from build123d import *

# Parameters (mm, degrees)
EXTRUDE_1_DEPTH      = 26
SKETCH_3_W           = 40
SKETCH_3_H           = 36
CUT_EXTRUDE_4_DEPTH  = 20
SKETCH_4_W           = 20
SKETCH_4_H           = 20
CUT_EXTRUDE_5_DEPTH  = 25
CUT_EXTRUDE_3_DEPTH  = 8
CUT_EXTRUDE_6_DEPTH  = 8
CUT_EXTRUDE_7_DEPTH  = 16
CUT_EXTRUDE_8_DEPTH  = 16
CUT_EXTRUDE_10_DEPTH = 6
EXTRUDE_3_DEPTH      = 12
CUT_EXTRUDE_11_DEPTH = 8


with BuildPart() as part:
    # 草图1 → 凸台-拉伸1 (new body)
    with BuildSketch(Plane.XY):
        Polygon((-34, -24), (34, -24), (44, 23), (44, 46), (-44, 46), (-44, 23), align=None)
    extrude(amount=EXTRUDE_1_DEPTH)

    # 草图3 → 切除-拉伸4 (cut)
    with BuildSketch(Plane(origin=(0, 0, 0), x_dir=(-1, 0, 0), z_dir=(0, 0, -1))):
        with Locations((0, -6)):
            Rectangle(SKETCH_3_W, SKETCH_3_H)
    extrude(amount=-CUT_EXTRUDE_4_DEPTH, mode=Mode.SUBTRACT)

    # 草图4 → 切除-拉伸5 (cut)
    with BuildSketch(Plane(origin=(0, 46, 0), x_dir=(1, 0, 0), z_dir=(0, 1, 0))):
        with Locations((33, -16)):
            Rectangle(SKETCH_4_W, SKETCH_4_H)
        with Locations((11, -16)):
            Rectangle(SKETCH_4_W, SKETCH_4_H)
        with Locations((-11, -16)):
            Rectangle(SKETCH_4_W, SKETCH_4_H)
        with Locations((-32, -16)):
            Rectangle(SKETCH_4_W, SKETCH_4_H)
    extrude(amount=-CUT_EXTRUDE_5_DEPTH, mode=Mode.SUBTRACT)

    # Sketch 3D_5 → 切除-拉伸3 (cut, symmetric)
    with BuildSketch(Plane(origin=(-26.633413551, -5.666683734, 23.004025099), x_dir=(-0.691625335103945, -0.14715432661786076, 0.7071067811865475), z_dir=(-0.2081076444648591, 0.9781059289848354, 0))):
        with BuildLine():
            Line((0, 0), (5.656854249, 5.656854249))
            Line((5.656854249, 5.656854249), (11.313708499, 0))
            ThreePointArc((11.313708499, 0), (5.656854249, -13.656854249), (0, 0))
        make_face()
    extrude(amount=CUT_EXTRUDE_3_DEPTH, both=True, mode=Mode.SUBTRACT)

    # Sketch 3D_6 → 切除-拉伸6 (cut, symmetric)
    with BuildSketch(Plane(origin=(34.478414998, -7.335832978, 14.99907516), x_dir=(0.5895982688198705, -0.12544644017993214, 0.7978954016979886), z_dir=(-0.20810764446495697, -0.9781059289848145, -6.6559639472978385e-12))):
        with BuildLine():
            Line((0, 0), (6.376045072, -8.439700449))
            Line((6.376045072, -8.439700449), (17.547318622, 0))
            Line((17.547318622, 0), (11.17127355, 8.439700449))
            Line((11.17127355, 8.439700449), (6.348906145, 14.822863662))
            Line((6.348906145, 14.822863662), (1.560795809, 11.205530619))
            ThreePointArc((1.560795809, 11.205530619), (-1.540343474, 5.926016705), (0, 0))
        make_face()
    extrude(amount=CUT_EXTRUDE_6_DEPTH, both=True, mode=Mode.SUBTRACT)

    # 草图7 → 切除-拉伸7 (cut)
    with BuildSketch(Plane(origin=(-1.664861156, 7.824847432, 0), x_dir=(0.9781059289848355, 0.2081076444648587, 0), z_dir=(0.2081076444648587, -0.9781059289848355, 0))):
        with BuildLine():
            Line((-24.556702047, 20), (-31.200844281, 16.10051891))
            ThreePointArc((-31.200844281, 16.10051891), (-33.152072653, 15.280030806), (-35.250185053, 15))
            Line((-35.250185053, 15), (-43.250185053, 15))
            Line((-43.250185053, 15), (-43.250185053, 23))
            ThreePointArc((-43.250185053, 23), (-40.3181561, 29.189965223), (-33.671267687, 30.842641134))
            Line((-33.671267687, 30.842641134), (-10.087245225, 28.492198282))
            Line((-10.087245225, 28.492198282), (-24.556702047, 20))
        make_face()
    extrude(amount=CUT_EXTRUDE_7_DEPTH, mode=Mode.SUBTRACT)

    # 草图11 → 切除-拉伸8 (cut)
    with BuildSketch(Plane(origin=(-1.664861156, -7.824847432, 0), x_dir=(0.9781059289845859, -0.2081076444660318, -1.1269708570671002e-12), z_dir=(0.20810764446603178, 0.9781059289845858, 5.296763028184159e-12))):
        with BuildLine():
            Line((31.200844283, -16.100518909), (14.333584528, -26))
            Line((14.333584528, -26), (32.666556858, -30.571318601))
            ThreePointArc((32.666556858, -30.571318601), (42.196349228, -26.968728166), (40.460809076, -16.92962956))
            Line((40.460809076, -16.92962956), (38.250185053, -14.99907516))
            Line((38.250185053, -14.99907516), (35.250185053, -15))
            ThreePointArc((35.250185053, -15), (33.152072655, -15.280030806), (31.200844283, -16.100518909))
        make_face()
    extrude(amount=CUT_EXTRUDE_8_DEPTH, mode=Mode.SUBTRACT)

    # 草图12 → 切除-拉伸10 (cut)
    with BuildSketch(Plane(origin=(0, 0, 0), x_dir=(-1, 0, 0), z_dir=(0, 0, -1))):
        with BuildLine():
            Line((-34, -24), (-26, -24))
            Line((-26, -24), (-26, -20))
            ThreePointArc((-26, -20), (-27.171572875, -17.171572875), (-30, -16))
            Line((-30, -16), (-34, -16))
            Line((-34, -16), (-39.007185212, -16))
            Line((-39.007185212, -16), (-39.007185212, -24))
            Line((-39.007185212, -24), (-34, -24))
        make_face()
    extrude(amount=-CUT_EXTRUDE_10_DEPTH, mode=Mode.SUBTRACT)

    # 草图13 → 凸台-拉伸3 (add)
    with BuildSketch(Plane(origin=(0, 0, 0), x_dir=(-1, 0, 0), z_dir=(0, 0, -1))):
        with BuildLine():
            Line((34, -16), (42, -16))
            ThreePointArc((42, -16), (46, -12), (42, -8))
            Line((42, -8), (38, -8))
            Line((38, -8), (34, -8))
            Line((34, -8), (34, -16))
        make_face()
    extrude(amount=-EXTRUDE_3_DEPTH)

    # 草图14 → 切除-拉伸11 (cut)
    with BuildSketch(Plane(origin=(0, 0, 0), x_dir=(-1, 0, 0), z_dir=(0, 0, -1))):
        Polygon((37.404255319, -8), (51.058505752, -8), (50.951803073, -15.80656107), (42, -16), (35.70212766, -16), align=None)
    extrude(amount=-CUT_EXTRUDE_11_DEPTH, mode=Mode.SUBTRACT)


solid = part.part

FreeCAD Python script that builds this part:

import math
import FreeCAD as App
import Part
import Sketcher
Q = App.Units.Quantity


def add_polygon(sketch, points):
    """Adds a closed chain of lines whose ends are joined by coincident constraints."""
    first, n = sketch.GeometryCount, len(points)
    for a, b in zip(points, points[1:] + points[:1]):
        sketch.addGeometry(Part.LineSegment(App.Vector(*a, 0), App.Vector(*b, 0)), False)
    for i in range(n):
        sketch.addConstraint(Sketcher.Constraint("Coincident", first + i, 2, first + (i + 1) % n, 1))

doc = App.newDocument("Part")
params = doc.addObject("Spreadsheet::Sheet", "Params")
for row, (alias, value) in enumerate([
    ("sketch1_width", "68 mm"),
    ("sketch1_width2", "88 mm"),
    ("sketch1_height", "23 mm"),
    ("pad1_length", "26 mm"),
    ("sketch2_width", "40 mm"),
    ("sketch2_height", "36 mm"),
    ("pocket1_length", "20 mm"),
    ("sketch3_width", "20 mm"),
    ("pocket2_length", "25 mm"),
    ("sketch4_radius", "8 mm"),
    ("pocket3_length", "16 mm"),
    ("sketch5_radius", "8 mm"),
    ("pocket4_length", "16 mm"),
    ("sketch6_radius", "8 mm"),
    ("pocket5_length", "16 mm"),
    ("sketch7_radius", "8 mm"),
    ("sketch7_length", "3 mm"),
    ("pocket6_length", "16 mm"),
    ("sketch8_radius", "4 mm"),
    ("sketch8_height", "4 mm"),
    ("pocket7_length", "6 mm"),
    ("sketch9_radius", "4 mm"),
    ("pad2_length", "12 mm"),
    ("pocket8_length", "8 mm"),
], start=1):
    params.set(f"A{row}", alias)
    params.set(f"B{row}", "=" + value)
    params.setAlias(f"B{row}", alias)

body = doc.addObject("PartDesign::Body", "Body")

sketch1 = body.newObject("Sketcher::SketchObject", "Sketch")
sketch1.AttachmentSupport = (doc.getObject("XY_Plane"), [""])
sketch1.MapMode = "FlatFace"
add_polygon(sketch1, [(-34, -24), (34, -24), (44, 23), (44, 46), (-44, 46), (-44, 23)])
sketch1.addConstraint([
    Sketcher.Constraint("Horizontal", 0),
    Sketcher.Constraint("Vertical", 2),
    Sketcher.Constraint("Horizontal", 3),
    Sketcher.Constraint("Vertical", 4),
    Sketcher.Constraint("Symmetric", 1, 2, 4, 2, -2),
    Sketcher.Constraint("Equal", 1, 5),
    Sketcher.Constraint("DistanceX", 0, 1, 0, 2, Q("68 mm")),
    Sketcher.Constraint("DistanceX", 3, 2, 3, 1, Q("88 mm")),
    Sketcher.Constraint("DistanceY", 2, 1, 2, 2, Q("23 mm")),
    Sketcher.Constraint("DistanceY", 0, 2, -1, 1, Q("24 mm")),
    Sketcher.Constraint("DistanceY", -1, 1, 1, 2, Q("23 mm")),
])
sketch1.setExpression("Constraints[12]", "Params.sketch1_width")
sketch1.setExpression("Constraints[13]", "Params.sketch1_width2")
sketch1.setExpression("Constraints[14]", "Params.sketch1_height")
pad1 = body.newObject("PartDesign::Pad", "Pad")
pad1.Profile = sketch1
pad1.setExpression("Length", "Params.pad1_length")

sketch2 = body.newObject("Sketcher::SketchObject", "Sketch001")
sketch2.AttachmentSupport = (doc.getObject("XY_Plane"), [""])
sketch2.MapMode = "FlatFace"
add_polygon(sketch2, [(20, 12), (20, -24), (-20, -24), (-20, 12)])
sketch2.addConstraint([
    Sketcher.Constraint("Vertical", 0),
    Sketcher.Constraint("Horizontal", 1),
    Sketcher.Constraint("Vertical", 2),
    Sketcher.Constraint("Horizontal", 3),
    Sketcher.Constraint("DistanceX", 1, 2, 1, 1, Q("40 mm")),
    Sketcher.Constraint("DistanceY", 0, 2, 0, 1, Q("36 mm")),
    Sketcher.Constraint("DistanceX", -1, 1, 0, 2, Q("20 mm")),
    Sketcher.Constraint("DistanceY", 0, 2, -1, 1, Q("24 mm")),
])
sketch2.setExpression("Constraints[8]", "Params.sketch2_width")
sketch2.setExpression("Constraints[9]", "Params.sketch2_height")
pocket1 = body.newObject("PartDesign::Pocket", "Pocket")
pocket1.Profile = sketch2
pocket1.setExpression("Length", "Params.pocket1_length")
pocket1.Reversed = True

sketch3 = body.newObject("Sketcher::SketchObject", "Sketch002")
sketch3.AttachmentSupport = (doc.getObject("XZ_Plane"), [""])
sketch3.MapMode = "FlatFace"
sketch3.AttachmentOffset = App.Placement(App.Vector(0, 0, -46), App.Rotation())
add_polygon(sketch3, [(23, 6), (23, 26), (43, 26), (43, 6)])
add_polygon(sketch3, [(1, 6), (1, 26), (21, 26), (21, 6)])
add_polygon(sketch3, [(-21, 6), (-21, 26), (-1, 26), (-1, 6)])
add_polygon(sketch3, [(-42, 6), (-42, 26), (-22, 26), (-22, 6)])
sketch3.addConstraint([
    Sketcher.Constraint("Vertical", 0),
    Sketcher.Constraint("Horizontal", 1),
    Sketcher.Constraint("Vertical", 2),
    Sketcher.Constraint("Horizontal", 3),
    Sketcher.Constraint("Vertical", 4),
    Sketcher.Constraint("Horizontal", 5),
    Sketcher.Constraint("Vertical", 6),
    Sketcher.Constraint("Horizontal", 7),
    Sketcher.Constraint("Vertical", 8),
    Sketcher.Constraint("Horizontal", 9),
    Sketcher.Constraint("Vertical", 10),
    Sketcher.Constraint("Horizontal", 11),
    Sketcher.Constraint("Vertical", 12),
    Sketcher.Constraint("Horizontal", 13),
    Sketcher.Constraint("Vertical", 14),
    Sketcher.Constraint("Horizontal", 15),
    Sketcher.Constraint("Symmetric", 5, 2, 8, 2, -2),
    Sketcher.Constraint("Symmetric", 7, 2, 10, 2, -2),
    Sketcher.Constraint("Horizontal", 1, 2, 4, 2),
    Sketcher.Constraint("Horizontal", 3, 2, 6, 2),
    Sketcher.Constraint("Horizontal", 9, 2, 12, 2),
    Sketcher.Constraint("Horizontal", 11, 2, 14, 2),
    Sketcher.Constraint("Equal", 3, 5),
    Sketcher.Constraint("Equal", 11, 13),
    Sketcher.Constraint("Equal", 15, 0),
    Sketcher.Constraint("DistanceX", 1, 1, 1, 2, Q("20 mm")),
    Sketcher.Constraint("DistanceX", -1, 1, 0, 2, Q("23 mm")),
    Sketcher.Constraint("DistanceY", -1, 1, 0, 2, Q("26 mm")),
    Sketcher.Constraint("DistanceX", -1, 1, 4, 2, Q("1 mm")),
    Sketcher.Constraint("DistanceX", 12, 2, -1, 1, Q("42 mm")),
])
sketch3.setExpression("Constraints[41]", "Params.sketch3_width")
pocket2 = body.newObject("PartDesign::Pocket", "Pocket001")
pocket2.Profile = sketch3
pocket2.setExpression("Length", "Params.pocket2_length")
pocket2.Reversed = True

sketch4 = body.newObject("Sketcher::SketchObject", "Sketch003")
sketch4.Placement = App.Placement(App.Vector(-26.633414, -5.666684, 23.004025), App.Rotation(App.Vector(-0.691625335, -0.147154327, 0.707106781), App.Vector(0.691625335, 0.147154326, 0.707106781), App.Vector(-0.208107644, 0.978105929, 0), "ZXY"))
sketch4.addGeometry([
    Part.LineSegment(App.Vector(5.656854, 5.656854, 0), App.Vector(0, 0, 0)),
    Part.ArcOfCircle(Part.Circle(App.Vector(5.656854, -5.656854, 0), App.Vector(0, 0, 1), 8), math.radians(135), math.radians(405)),
    Part.LineSegment(App.Vector(11.313708, 0, 0), App.Vector(5.656854, 5.656854, 0)),
], False)
sketch4.addConstraint([
    Sketcher.Constraint("Tangent", 0, 2, 1, 1),
    Sketcher.Constraint("Tangent", 1, 2, 2, 1),
    Sketcher.Constraint("Coincident", 2, 2, 0, 1),
    Sketcher.Constraint("Coincident", 0, 2, -1, 1),
    Sketcher.Constraint("PointOnObject", 1, 2, -1),
    Sketcher.Constraint("Perpendicular", 0, 2),
    Sketcher.Constraint("Radius", 1, Q("8 mm")),
])
sketch4.setExpression("Constraints[6]", "Params.sketch4_radius")
pocket3 = body.newObject("PartDesign::Pocket", "Pocket002")
pocket3.Profile = sketch4
pocket3.setExpression("Length", "Params.pocket3_length")
pocket3.Midplane = True

sketch5 = body.newObject("Sketcher::SketchObject", "Sketch004")
sketch5.Placement = App.Placement(App.Vector(34.478415, -7.335833, 14.999075), App.Rotation(App.Vector(0.589598269, -0.12544644, 0.797895402), App.Vector(-0.780426223, 0.166048132, 0.602795926), App.Vector(-0.208107644, -0.978105929, 0), "ZXY"))
sketch5.addGeometry([
    Part.LineSegment(App.Vector(0, 0, 0), App.Vector(6.376045, -8.4397, 0)),
    Part.LineSegment(App.Vector(6.376045, -8.4397, 0), App.Vector(17.547319, 0, 0)),
    Part.LineSegment(App.Vector(17.547319, 0, 0), App.Vector(11.171274, 8.4397, 0)),
    Part.LineSegment(App.Vector(11.171274, 8.4397, 0), App.Vector(6.348906, 14.822864, 0)),
    Part.LineSegment(App.Vector(6.348906, 14.822864, 0), App.Vector(1.560796, 11.205531, 0)),
    Part.ArcOfCircle(Part.Circle(App.Vector(6.383163, 4.822367, 0), App.Vector(0, 0, 1), 8), math.radians(127.070405), math.radians(217.070405)),
], False)
sketch5.addConstraint([
    Sketcher.Constraint("Coincident", 0, 2, 1, 1),
    Sketcher.Constraint("Coincident", 1, 2, 2, 1),
    Sketcher.Constraint("Coincident", 2, 2, 3, 1),
    Sketcher.Constraint("Coincident", 3, 2, 4, 1),
    Sketcher.Constraint("Tangent", 4, 2, 5, 1),
    Sketcher.Constraint("Tangent", 5, 2, 0, 1),
    Sketcher.Constraint("Coincident", 5, 2, -1, 1),
    Sketcher.Constraint("PointOnObject", 1, 2, -1),
    Sketcher.Constraint("Perpendicular", 0, 1),
    Sketcher.Constraint("Perpendicular", 1, 2),
    Sketcher.Constraint("Parallel", 2, 3),
    Sketcher.Constraint("Perpendicular", 3, 4),
    Sketcher.Constraint("Equal", 0, 2),
    Sketcher.Constraint("Radius", 5, Q("8 mm")),
    Sketcher.Constraint("DistanceY", 0, 2, -1, 1, Q("8.4397 mm")),
    Sketcher.Constraint("DistanceX", -1, 1, 1, 2, Q("17.547319 mm")),
])
sketch5.setExpression("Constraints[13]", "Params.sketch5_radius")
pocket4 = body.newObject("PartDesign::Pocket", "Pocket003")
pocket4.Profile = sketch5
pocket4.setExpression("Length", "Params.pocket4_length")
pocket4.Midplane = True

sketch6 = body.newObject("Sketcher::SketchObject", "Sketch005")
sketch6.Placement = App.Placement(App.Vector(-1.664861, 7.824847, 0), App.Rotation(App.Vector(0.978105929, 0.208107644, 0), App.Vector(0, 0, 1), App.Vector(0.208107644, -0.978105929, 0), "ZXY"))
sketch6.addGeometry([
    Part.LineSegment(App.Vector(-31.200844, 16.100519, 0), App.Vector(-24.556702, 20, 0)),
    Part.LineSegment(App.Vector(-24.556702, 20, 0), App.Vector(-10.087245, 28.492198, 0)),
    Part.LineSegment(App.Vector(-10.087245, 28.492198, 0), App.Vector(-33.671268, 30.842641, 0)),
    Part.ArcOfCircle(Part.Circle(App.Vector(-35.250185, 23, 0), App.Vector(0, 0, 1), 8), math.radians(78.617106), math.radians(180)),
    Part.LineSegment(App.Vector(-43.250185, 23, 0), App.Vector(-43.250185, 15, 0)),
    Part.LineSegment(App.Vector(-43.250185, 15, 0), App.Vector(-35.250185, 15, 0)),
    Part.ArcOfCircle(Part.Circle(App.Vector(-35.250185, 23, 0), App.Vector(0, 0, 1), 8), math.radians(-90), math.radians(-59.591109)),
], False)
sketch6.addConstraint([
    Sketcher.Constraint("Coincident", 0, 2, 1, 1),
    Sketcher.Constraint("Coincident", 1, 2, 2, 1),
    Sketcher.Constraint("Coincident", 2, 2, 3, 1),
    Sketcher.Constraint("Tangent", 3, 2, 4, 1),
    Sketcher.Constraint("Coincident", 4, 2, 5, 1),
    Sketcher.Constraint("Tangent", 5, 2, 6, 1),
    Sketcher.Constraint("Tangent", 6, 2, 0, 1),
    Sketcher.Constraint("Vertical", 4),
    Sketcher.Constraint("Horizontal", 5),
    Sketcher.Constraint("Coincident", 6, 3, 3, 3),
    Sketcher.Constraint("Equal", 3, 6),
    Sketcher.Constraint("Parallel", 0, 1),
    Sketcher.Constraint("Radius", 3, Q("8 mm")),
    Sketcher.Constraint("DistanceY", -1, 1, 3, 3, Q("23 mm")),
    Sketcher.Constraint("DistanceY", -1, 1, 0, 2, Q("20 mm")),
    Sketcher.Constraint("DistanceY", -1, 1, 1, 2, Q("28.492198 mm")),
    Sketcher.Constraint("Distance", 2, Q("23.700859 mm")),
    Sketcher.Constraint("DistanceY", -1, 1, 2, 2, Q("30.842641 mm")),
    Sketcher.Constraint("DistanceX", 3, 3, -1, 1, Q("35.250185 mm")),
])
sketch6.setExpression("Constraints[12]", "Params.sketch6_radius")
pocket5 = body.newObject("PartDesign::Pocket", "Pocket004")
pocket5.Profile = sketch6
pocket5.setExpression("Length", "Params.pocket5_length")
pocket5.Reversed = True

sketch7 = body.newObject("Sketcher::SketchObject", "Sketch006")
sketch7.Placement = App.Placement(App.Vector(-1.664861, -7.824847, 0), App.Rotation(App.Vector(0.978105929, -0.208107644, 0), App.Vector(0, 0, -1), App.Vector(0.208107644, 0.978105929, 0), "ZXY"))
sketch7.addGeometry([
    Part.LineSegment(App.Vector(31.200844, -16.100519, 0), App.Vector(14.333585, -26, 0)),
    Part.LineSegment(App.Vector(14.333585, -26, 0), App.Vector(32.666557, -30.571319, 0)),
    Part.ArcOfCircle(Part.Circle(App.Vector(35.250185, -23, 0), App.Vector(0, 0, 1), 8), math.radians(-108.841636), math.radians(49.358197)),
    Part.LineSegment(App.Vector(40.460809, -16.92963, 0), App.Vector(38.250185, -14.999075, 0)),
    Part.LineSegment(App.Vector(38.250185, -14.999075, 0), App.Vector(35.250185, -15, 0)),
    Part.ArcOfCircle(Part.Circle(App.Vector(35.250185, -23, 0), App.Vector(0, 0, 1), 8), math.radians(90), math.radians(120.408891)),
], False)
sketch7.addConstraint([
    Sketcher.Constraint("Coincident", 0, 2, 1, 1),
    Sketcher.Constraint("Coincident", 1, 2, 2, 1),
    Sketcher.Constraint("Coincident", 2, 2, 3, 1),
    Sketcher.Constraint("Coincident", 3, 2, 4, 1),
    Sketcher.Constraint("Coincident", 4, 2, 5, 1),
    Sketcher.Constraint("Tangent", 5, 2, 0, 1),
    Sketcher.Constraint("Coincident", 5, 3, 2, 3),
    Sketcher.Constraint("Equal", 2, 5),
    Sketcher.Constraint("Vertical", 5, 3, 4, 2),
    Sketcher.Constraint("Radius", 2, Q("8 mm")),
    Sketcher.Constraint("Distance", 4, Q("3 mm")),
    Sketcher.Constraint("DistanceY", 2, 3, -1, 1, Q("23 mm")),
    Sketcher.Constraint("DistanceY", 0, 2, -1, 1, Q("26 mm")),
    Sketcher.Constraint("DistanceX", 0, 2, 2, 3, Q("20.916601 mm")),
    Sketcher.Constraint("DistanceY", 1, 2, -1, 1, Q("30.571319 mm")),
    Sketcher.Constraint("DistanceX", -1, 1, 2, 2, Q("40.460809 mm")),
    Sketcher.Constraint("DistanceY", 2, 2, -1, 1, Q("16.92963 mm")),
    Sketcher.Constraint("Distance", 3, Q("2.934944 mm")),
])
sketch7.setExpression("Constraints[9]", "Params.sketch7_radius")
sketch7.setExpression("Constraints[10]", "Params.sketch7_length")
pocket6 = body.newObject("PartDesign::Pocket", "Pocket005")
pocket6.Profile = sketch7
pocket6.setExpression("Length", "Params.pocket6_length")
pocket6.Reversed = True

sketch8 = body.newObject("Sketcher::SketchObject", "Sketch007")
sketch8.AttachmentSupport = (doc.getObject("XY_Plane"), [""])
sketch8.MapMode = "FlatFace"
sketch8.addGeometry([
    Part.LineSegment(App.Vector(26, -24, 0), App.Vector(26, -20, 0)),
    Part.ArcOfCircle(Part.Circle(App.Vector(30, -20, 0), App.Vector(0, 0, 1), 4), math.radians(90), math.radians(180)),
    Part.LineSegment(App.Vector(30, -16, 0), App.Vector(39.007185, -16, 0)),
    Part.LineSegment(App.Vector(39.007185, -16, 0), App.Vector(39.007185, -24, 0)),
    Part.LineSegment(App.Vector(39.007185, -24, 0), App.Vector(26, -24, 0)),
], False)
sketch8.addConstraint([
    Sketcher.Constraint("Tangent", 0, 2, 1, 2),
    Sketcher.Constraint("Tangent", 1, 1, 2, 1),
    Sketcher.Constraint("Coincident", 2, 2, 3, 1),
    Sketcher.Constraint("Coincident", 3, 2, 4, 1),
    Sketcher.Constraint("Coincident", 4, 2, 0, 1),
    Sketcher.Constraint("Vertical", 0),
    Sketcher.Constraint("Horizontal", 2),
    Sketcher.Constraint("Vertical", 3),
    Sketcher.Constraint("Horizontal", 4),
    Sketcher.Constraint("Radius", 1, Q("4 mm")),
    Sketcher.Constraint("DistanceY", 0, 1, 0, 2, Q("4 mm")),
    Sketcher.Constraint("DistanceX", -1, 1, 1, 3, Q("30 mm")),
    Sketcher.Constraint("DistanceY", 1, 3, -1, 1, Q("20 mm")),
    Sketcher.Constraint("DistanceX", 2, 1, 2, 2, Q("9.007185 mm")),
])
sketch8.setExpression("Constraints[9]", "Params.sketch8_radius")
sketch8.setExpression("Constraints[10]", "Params.sketch8_height")
pocket7 = body.newObject("PartDesign::Pocket", "Pocket006")
pocket7.Profile = sketch8
pocket7.setExpression("Length", "Params.pocket7_length")
pocket7.Reversed = True

sketch9 = body.newObject("Sketcher::SketchObject", "Sketch008")
sketch9.AttachmentSupport = (doc.getObject("XY_Plane"), [""])
sketch9.MapMode = "FlatFace"
sketch9.addGeometry([
    Part.LineSegment(App.Vector(-34, -16, 0), App.Vector(-42, -16, 0)),
    Part.ArcOfCircle(Part.Circle(App.Vector(-42, -12, 0), App.Vector(0, 0, 1), 4), math.radians(90), math.radians(270)),
    Part.LineSegment(App.Vector(-42, -8, 0), App.Vector(-34, -8, 0)),
    Part.LineSegment(App.Vector(-34, -8, 0), App.Vector(-34, -16, 0)),
], False)
sketch9.addConstraint([
    Sketcher.Constraint("Tangent", 0, 2, 1, 2),
    Sketcher.Constraint("Tangent", 1, 1, 2, 1),
    Sketcher.Constraint("Coincident", 2, 2, 3, 1),
    Sketcher.Constraint("Coincident", 3, 2, 0, 1),
    Sketcher.Constraint("Horizontal", 0),
    Sketcher.Constraint("Horizontal", 2),
    Sketcher.Constraint("Vertical", 3),
    Sketcher.Constraint("Equal", 2, 3),
    Sketcher.Constraint("Radius", 1, Q("4 mm")),
    Sketcher.Constraint("DistanceX", 1, 3, -1, 1, Q("42 mm")),
    Sketcher.Constraint("DistanceY", 1, 3, -1, 1, Q("12 mm")),
])
sketch9.setExpression("Constraints[8]", "Params.sketch9_radius")
pad2 = body.newObject("PartDesign::Pad", "Pad001")
pad2.Profile = sketch9
pad2.setExpression("Length", "Params.pad2_length")

sketch10 = body.newObject("Sketcher::SketchObject", "Sketch009")
sketch10.AttachmentSupport = (doc.getObject("XY_Plane"), [""])
sketch10.MapMode = "FlatFace"
add_polygon(sketch10, [(-51.058506, -8), (-37.404255, -8), (-35.702128, -16), (-42, -16), (-50.951803, -15.806561)])
sketch10.addConstraint([
    Sketcher.Constraint("Horizontal", 0),
    Sketcher.Constraint("Horizontal", 2),
    Sketcher.Constraint("DistanceY", 0, 2, -1, 1, Q("8 mm")),
    Sketcher.Constraint("DistanceY", 1, 2, -1, 1, Q("16 mm")),
    Sketcher.Constraint("DistanceX", 2, 2, -1, 1, Q("42 mm")),
    Sketcher.Constraint("DistanceX", 0, 1, 0, 2, Q("13.65425 mm")),
    Sketcher.Constraint("Distance", 4, Q("7.80729 mm")),
    Sketcher.Constraint("DistanceX", 2, 2, 2, 1, Q("6.297872 mm")),
    Sketcher.Constraint("DistanceY", 3, 2, -1, 1, Q("15.806561 mm")),
    Sketcher.Constraint("DistanceX", 4, 2, 1, 2, Q("15.356378 mm")),
])
pocket8 = body.newObject("PartDesign::Pocket", "Pocket007")
pocket8.Profile = sketch10
pocket8.setExpression("Length", "Params.pocket8_length")
pocket8.Reversed = True

doc.recompute()
